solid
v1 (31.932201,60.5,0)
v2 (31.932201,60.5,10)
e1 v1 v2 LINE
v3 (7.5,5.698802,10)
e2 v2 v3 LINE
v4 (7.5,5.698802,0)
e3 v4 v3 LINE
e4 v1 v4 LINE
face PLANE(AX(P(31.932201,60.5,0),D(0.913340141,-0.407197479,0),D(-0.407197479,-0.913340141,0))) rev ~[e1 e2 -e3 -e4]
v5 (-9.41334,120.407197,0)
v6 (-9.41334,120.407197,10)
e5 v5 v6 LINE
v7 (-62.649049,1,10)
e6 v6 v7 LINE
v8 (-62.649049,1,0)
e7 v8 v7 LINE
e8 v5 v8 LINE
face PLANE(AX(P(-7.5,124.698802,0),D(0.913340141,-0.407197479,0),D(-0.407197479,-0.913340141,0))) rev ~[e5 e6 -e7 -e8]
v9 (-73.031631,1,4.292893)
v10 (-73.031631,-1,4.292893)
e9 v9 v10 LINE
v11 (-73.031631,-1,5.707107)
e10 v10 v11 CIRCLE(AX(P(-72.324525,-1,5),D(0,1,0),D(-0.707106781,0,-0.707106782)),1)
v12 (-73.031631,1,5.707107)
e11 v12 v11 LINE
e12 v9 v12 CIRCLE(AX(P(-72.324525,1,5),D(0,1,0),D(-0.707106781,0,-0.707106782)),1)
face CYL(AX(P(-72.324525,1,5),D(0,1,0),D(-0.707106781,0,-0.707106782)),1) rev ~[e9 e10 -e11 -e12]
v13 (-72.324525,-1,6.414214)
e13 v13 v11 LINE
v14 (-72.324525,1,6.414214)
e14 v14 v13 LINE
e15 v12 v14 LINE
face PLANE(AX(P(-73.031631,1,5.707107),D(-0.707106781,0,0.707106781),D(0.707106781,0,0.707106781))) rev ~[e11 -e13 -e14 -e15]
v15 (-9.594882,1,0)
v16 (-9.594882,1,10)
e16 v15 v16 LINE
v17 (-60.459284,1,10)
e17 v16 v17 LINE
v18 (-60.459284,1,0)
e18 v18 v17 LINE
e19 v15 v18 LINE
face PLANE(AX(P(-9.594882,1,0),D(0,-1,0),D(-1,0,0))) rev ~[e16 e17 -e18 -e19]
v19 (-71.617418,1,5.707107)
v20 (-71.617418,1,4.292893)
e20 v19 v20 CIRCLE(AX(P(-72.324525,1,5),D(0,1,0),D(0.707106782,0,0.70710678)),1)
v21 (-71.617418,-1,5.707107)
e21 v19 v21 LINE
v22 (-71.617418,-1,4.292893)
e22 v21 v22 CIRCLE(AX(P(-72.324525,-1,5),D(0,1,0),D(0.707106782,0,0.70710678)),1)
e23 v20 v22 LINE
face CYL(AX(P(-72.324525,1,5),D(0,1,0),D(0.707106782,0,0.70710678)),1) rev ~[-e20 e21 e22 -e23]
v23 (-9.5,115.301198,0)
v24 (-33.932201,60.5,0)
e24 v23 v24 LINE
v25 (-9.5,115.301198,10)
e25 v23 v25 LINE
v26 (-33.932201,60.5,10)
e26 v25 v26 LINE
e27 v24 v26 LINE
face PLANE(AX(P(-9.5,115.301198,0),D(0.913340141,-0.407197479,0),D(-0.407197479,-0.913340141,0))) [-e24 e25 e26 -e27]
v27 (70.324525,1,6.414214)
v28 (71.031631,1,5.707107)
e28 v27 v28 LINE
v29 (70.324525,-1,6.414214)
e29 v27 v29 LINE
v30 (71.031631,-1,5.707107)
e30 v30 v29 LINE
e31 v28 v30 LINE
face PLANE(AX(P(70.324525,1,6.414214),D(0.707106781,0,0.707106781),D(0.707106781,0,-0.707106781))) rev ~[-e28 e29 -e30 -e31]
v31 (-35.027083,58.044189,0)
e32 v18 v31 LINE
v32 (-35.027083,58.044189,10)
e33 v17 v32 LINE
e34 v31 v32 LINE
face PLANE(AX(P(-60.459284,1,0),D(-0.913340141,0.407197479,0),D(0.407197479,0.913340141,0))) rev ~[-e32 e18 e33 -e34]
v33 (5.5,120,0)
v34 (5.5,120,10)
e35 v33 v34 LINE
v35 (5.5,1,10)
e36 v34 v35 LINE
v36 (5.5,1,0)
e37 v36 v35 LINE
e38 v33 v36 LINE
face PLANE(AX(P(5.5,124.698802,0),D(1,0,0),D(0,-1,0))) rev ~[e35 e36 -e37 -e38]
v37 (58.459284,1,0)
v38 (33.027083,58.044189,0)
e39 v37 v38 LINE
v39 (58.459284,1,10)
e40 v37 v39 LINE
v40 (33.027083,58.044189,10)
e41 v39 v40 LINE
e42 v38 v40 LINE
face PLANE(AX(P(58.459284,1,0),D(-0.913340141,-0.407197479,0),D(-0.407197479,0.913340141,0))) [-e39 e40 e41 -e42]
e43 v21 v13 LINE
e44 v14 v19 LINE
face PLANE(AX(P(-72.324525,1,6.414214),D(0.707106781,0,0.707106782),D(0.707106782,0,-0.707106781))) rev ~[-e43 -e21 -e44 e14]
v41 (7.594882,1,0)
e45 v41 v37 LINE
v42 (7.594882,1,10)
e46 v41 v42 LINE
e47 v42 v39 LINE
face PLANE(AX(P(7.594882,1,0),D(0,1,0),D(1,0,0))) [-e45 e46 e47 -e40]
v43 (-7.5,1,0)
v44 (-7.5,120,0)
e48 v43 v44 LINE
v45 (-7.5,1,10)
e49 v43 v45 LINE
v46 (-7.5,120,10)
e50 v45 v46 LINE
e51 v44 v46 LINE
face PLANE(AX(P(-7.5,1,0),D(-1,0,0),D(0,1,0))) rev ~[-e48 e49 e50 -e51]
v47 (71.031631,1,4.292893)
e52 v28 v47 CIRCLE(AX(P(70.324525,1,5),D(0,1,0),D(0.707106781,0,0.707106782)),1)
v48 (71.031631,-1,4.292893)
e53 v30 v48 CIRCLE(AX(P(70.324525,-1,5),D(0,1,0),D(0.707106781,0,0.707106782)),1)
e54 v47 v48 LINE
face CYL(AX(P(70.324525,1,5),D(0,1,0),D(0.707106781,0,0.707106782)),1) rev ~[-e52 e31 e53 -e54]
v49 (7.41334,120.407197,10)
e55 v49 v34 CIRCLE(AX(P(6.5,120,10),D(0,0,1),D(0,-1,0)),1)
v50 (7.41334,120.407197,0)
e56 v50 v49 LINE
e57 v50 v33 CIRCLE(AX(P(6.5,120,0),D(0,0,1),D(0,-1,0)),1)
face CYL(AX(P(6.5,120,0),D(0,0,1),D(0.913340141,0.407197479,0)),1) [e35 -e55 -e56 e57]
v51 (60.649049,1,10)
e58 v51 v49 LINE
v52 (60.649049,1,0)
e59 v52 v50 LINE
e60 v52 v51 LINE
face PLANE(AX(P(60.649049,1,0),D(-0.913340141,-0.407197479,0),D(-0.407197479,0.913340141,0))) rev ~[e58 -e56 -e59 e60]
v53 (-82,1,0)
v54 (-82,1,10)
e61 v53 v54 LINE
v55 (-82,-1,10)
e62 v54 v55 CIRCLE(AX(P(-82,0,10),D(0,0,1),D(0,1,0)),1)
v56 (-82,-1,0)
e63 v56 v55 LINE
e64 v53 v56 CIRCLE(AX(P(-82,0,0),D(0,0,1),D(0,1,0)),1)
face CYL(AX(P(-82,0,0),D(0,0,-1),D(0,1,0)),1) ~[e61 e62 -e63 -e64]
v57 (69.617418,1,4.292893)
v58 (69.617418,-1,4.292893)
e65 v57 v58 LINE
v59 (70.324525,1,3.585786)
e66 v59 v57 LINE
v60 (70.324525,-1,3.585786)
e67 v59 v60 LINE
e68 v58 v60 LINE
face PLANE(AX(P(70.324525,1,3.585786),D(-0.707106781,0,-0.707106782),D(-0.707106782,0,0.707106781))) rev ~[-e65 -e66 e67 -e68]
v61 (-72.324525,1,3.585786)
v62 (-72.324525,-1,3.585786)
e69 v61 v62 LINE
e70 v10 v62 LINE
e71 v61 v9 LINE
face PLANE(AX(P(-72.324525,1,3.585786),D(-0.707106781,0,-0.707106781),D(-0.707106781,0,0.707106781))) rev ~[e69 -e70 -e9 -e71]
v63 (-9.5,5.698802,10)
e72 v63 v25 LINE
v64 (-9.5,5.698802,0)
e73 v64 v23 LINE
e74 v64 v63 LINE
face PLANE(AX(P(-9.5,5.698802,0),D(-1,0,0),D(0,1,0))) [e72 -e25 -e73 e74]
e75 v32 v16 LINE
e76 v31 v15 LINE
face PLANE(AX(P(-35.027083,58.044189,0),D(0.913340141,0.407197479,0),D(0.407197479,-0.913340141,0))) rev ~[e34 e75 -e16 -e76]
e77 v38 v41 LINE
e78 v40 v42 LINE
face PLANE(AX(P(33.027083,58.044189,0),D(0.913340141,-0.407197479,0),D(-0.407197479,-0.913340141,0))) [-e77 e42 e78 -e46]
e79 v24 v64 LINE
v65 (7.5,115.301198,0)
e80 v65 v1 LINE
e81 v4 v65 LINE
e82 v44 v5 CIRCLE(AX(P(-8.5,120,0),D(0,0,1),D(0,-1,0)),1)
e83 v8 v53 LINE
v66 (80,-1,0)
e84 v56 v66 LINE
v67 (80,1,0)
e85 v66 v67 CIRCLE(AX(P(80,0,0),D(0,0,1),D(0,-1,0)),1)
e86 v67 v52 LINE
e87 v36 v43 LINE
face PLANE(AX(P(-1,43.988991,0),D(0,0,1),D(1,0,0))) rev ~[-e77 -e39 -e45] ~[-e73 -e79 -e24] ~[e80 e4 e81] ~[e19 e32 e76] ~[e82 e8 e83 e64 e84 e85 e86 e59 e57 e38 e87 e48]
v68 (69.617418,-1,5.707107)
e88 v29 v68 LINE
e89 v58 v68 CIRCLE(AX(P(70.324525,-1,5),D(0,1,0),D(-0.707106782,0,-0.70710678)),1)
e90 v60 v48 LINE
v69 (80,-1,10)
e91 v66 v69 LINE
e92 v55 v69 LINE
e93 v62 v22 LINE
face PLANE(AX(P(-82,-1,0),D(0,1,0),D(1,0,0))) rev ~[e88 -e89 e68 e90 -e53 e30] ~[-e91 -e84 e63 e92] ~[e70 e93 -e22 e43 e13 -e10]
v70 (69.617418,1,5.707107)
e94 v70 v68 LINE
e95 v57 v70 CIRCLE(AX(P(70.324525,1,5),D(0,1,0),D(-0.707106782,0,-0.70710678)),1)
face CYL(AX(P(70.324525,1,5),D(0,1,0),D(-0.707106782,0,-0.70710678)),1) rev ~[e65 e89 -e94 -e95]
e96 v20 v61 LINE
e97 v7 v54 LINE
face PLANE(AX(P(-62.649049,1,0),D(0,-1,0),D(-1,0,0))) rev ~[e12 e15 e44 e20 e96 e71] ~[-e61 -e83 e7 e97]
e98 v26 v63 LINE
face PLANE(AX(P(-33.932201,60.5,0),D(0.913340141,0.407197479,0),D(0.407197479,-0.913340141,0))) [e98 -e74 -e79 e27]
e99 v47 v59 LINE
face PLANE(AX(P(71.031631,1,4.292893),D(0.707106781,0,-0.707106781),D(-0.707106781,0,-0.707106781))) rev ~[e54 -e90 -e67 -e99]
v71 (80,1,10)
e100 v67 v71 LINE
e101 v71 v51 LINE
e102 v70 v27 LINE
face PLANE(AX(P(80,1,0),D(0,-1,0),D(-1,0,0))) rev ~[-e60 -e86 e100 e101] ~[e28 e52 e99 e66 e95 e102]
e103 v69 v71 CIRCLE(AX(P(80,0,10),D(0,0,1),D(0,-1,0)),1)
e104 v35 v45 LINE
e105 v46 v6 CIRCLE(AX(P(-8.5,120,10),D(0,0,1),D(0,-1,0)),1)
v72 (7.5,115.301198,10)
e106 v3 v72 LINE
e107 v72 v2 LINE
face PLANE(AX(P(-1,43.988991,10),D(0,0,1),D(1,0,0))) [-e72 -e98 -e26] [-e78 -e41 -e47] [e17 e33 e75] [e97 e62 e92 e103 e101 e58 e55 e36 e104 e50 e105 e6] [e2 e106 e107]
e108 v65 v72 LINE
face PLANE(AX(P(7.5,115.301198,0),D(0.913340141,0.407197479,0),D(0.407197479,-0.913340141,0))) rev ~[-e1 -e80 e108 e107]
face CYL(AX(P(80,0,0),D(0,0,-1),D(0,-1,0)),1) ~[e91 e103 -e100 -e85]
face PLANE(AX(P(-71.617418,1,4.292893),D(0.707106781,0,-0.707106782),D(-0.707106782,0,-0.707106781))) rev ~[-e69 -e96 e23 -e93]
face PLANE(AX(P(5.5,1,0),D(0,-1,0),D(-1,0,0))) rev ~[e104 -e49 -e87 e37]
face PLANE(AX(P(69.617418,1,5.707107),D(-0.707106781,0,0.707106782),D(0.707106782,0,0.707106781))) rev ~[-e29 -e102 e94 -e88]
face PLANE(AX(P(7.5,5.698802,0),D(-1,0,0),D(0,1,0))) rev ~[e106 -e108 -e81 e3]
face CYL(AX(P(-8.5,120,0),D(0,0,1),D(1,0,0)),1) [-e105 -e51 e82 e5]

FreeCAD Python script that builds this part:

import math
import FreeCAD as App
import Part
import Sketcher
from FreeCAD import Vector


def edges_at(feature, points):
    """Names of the edges that pass closest to the given points."""
    edges = feature.Shape.Edges
    near = lambda p: min(range(len(edges)), key=lambda i: edges[i].distToShape(Part.Vertex(*p))[0])
    return sorted({f"Edge{near(p) + 1}" for p in points})

doc = App.newDocument("Part")
body = doc.addObject("PartDesign::Body", "Body")

sketch1 = body.newObject("Sketcher::SketchObject", "Sketch")
sketch1.AttachmentSupport = (doc.getObject("XY_Plane"), [""])
sketch1.MapMode = "FlatFace"
sketch1.addGeometry(Part.ArcOfCircle(Part.Circle(Vector(80, 0, 0), Vector(0, 0, 1), 1), math.radians(-90), math.radians(90)), False)
sketch1.addGeometry(Part.LineSegment(Vector(80, 1, 0), Vector(60.6, 1, 0)), False)
sketch1.addGeometry(Part.LineSegment(Vector(60.6, 1, 0), Vector(5.5, 124.7, 0)), False)
sketch1.addGeometry(Part.LineSegment(Vector(5.5, 124.7, 0), Vector(5.5, 1, 0)), False)
sketch1.addGeometry(Part.LineSegment(Vector(5.5, 1, 0), Vector(-7.5, 1, 0)), False)
sketch1.addGeometry(Part.LineSegment(Vector(-7.5, 1, 0), Vector(-7.5, 124.7, 0)), False)
sketch1.addGeometry(Part.LineSegment(Vector(-7.5, 124.7, 0), Vector(-62.6, 1, 0)), False)
sketch1.addGeometry(Part.LineSegment(Vector(-62.6, 1, 0), Vector(-82, 1, 0)), False)
sketch1.addGeometry(Part.ArcOfCircle(Part.Circle(Vector(-82, 0, 0), Vector(0, 0, 1), 1), math.radians(90), math.radians(270)), False)
sketch1.addGeometry(Part.LineSegment(Vector(-82, -1, 0), Vector(80, -1, 0)), False)
sketch1.addGeometry(Part.LineSegment(Vector(-60.5, 1, 0), Vector(-35, 58, 0)), False)
sketch1.addGeometry(Part.LineSegment(Vector(-35, 58, 0), Vector(-9.6, 1, 0)), False)
sketch1.addGeometry(Part.LineSegment(Vector(-9.6, 1, 0), Vector(-60.5, 1, 0)), False)
sketch1.addGeometry(Part.LineSegment(Vector(58.5, 1, 0), Vector(7.6, 1, 0)), False)
sketch1.addGeometry(Part.LineSegment(Vector(7.6, 1, 0), Vector(33, 58, 0)), False)
sketch1.addGeometry(Part.LineSegment(Vector(33, 58, 0), Vector(58.5, 1, 0)), False)
sketch1.addGeometry(Part.LineSegment(Vector(-33.9, 60.5, 0), Vector(-9.5, 115.3, 0)), False)
sketch1.addGeometry(Part.LineSegment(Vector(-9.5, 115.3, 0), Vector(-9.5, 5.7, 0)), False)
sketch1.addGeometry(Part.LineSegment(Vector(-9.5, 5.7, 0), Vector(-33.9, 60.5, 0)), False)
sketch1.addGeometry(Part.LineSegment(Vector(7.5, 115.3, 0), Vector(31.9, 60.5, 0)), False)
sketch1.addGeometry(Part.LineSegment(Vector(31.9, 60.5, 0), Vector(7.5, 5.7, 0)), False)
sketch1.addGeometry(Part.LineSegment(Vector(7.5, 5.7, 0), Vector(7.5, 115.3, 0)), False)
sketch1.addConstraint(Sketcher.Constraint("Tangent", 0, 2, 1, 1))
sketch1.addConstraint(Sketcher.Constraint("Coincident", 1, 2, 2, 1))
sketch1.addConstraint(Sketcher.Constraint("Coincident", 2, 2, 3, 1))
sketch1.addConstraint(Sketcher.Constraint("Coincident", 3, 2, 4, 1))
sketch1.addConstraint(Sketcher.Constraint("Coincident", 4, 2, 5, 1))
sketch1.addConstraint(Sketcher.Constraint("Coincident", 5, 2, 6, 1))
sketch1.addConstraint(Sketcher.Constraint("Coincident", 6, 2, 7, 1))
sketch1.addConstraint(Sketcher.Constraint("Tangent", 7, 2, 8, 1))
sketch1.addConstraint(Sketcher.Constraint("Tangent", 8, 2, 9, 1))
sketch1.addConstraint(Sketcher.Constraint("Tangent", 9, 2, 0, 1))
sketch1.addConstraint(Sketcher.Constraint("Coincident", 10, 2, 11, 1))
sketch1.addConstraint(Sketcher.Constraint("Coincident", 11, 2, 12, 1))
sketch1.addConstraint(Sketcher.Constraint("Coincident", 12, 2, 10, 1))
sketch1.addConstraint(Sketcher.Constraint("Coincident", 13, 2, 14, 1))
sketch1.addConstraint(Sketcher.Constraint("Coincident", 14, 2, 15, 1))
sketch1.addConstraint(Sketcher.Constraint("Coincident", 15, 2, 13, 1))
sketch1.addConstraint(Sketcher.Constraint("Coincident", 16, 2, 17, 1))
sketch1.addConstraint(Sketcher.Constraint("Coincident", 17, 2, 18, 1))
sketch1.addConstraint(Sketcher.Constraint("Coincident", 18, 2, 16, 1))
sketch1.addConstraint(Sketcher.Constraint("Coincident", 19, 2, 20, 1))
sketch1.addConstraint(Sketcher.Constraint("Coincident", 20, 2, 21, 1))
sketch1.addConstraint(Sketcher.Constraint("Coincident", 21, 2, 19, 1))
sketch1.addConstraint(Sketcher.Constraint("Horizontal", 1))
sketch1.addConstraint(Sketcher.Constraint("Vertical", 3))
sketch1.addConstraint(Sketcher.Constraint("Horizontal", 4))
sketch1.addConstraint(Sketcher.Constraint("Vertical", 5))
sketch1.addConstraint(Sketcher.Constraint("Horizontal", 7))
sketch1.addConstraint(Sketcher.Constraint("Horizontal", 9))
sketch1.addConstraint(Sketcher.Constraint("Horizontal", 12))
sketch1.addConstraint(Sketcher.Constraint("Horizontal", 13))
sketch1.addConstraint(Sketcher.Constraint("Vertical", 17))
sketch1.addConstraint(Sketcher.Constraint("Vertical", 21))
sketch1.addConstraint(Sketcher.Constraint("Equal", 0, 8))
sketch1.addConstraint(Sketcher.Constraint("PointOnObject", 0, 3, -1))
sketch1.addConstraint(Sketcher.Constraint("Parallel", 6, 10))
sketch1.addConstraint(Sketcher.Constraint("Parallel", 2, 11))
sketch1.addConstraint(Sketcher.Constraint("Parallel", 10, 14))
sketch1.addConstraint(Sketcher.Constraint("Parallel", 11, 15))
sketch1.addConstraint(Sketcher.Constraint("Parallel", 14, 16))
sketch1.addConstraint(Sketcher.Constraint("Parallel", 15, 18))
sketch1.addConstraint(Sketcher.Constraint("Parallel", 18, 19))
sketch1.addConstraint(Sketcher.Constraint("Parallel", 16, 20))
sketch1.addConstraint(Sketcher.Constraint("Horizontal", 1, 2, 3, 2))
sketch1.addConstraint(Sketcher.Constraint("Horizontal", 2, 2, 5, 2))
sketch1.addConstraint(Sketcher.Constraint("Horizontal", 7, 2, 11, 2))
sketch1.addConstraint(Sketcher.Constraint("Horizontal", 12, 2, 13, 2))
sketch1.addConstraint(Sketcher.Constraint("Horizontal", 10, 2, 14, 2))
sketch1.addConstraint(Sketcher.Constraint("Horizontal", 18, 2, 19, 2))
sketch1.addConstraint(Sketcher.Constraint("Horizontal", 17, 2, 20, 2))
sketch1.addConstraint(Sketcher.Constraint("Horizontal", 16, 2, 21, 2))
sketch1.addConstraint(Sketcher.Constraint("Equal", 1, 7))
sketch1.addConstraint(Sketcher.Constraint("Radius", 0, 1.0))
sketch1.addConstraint(Sketcher.Constraint("DistanceX", 4, 2, 4, 1, 13.0))
sketch1.addConstraint(Sketcher.Constraint("DistanceX", 9, 1, 9, 2, 162.0))
sketch1.addConstraint(Sketcher.Constraint("DistanceX", -1, 1, 0, 3, 80.0))
sketch1.addConstraint(Sketcher.Constraint("DistanceX", 16, 2, 5, 2, 2.0))
sketch1.addConstraint(Sketcher.Constraint("DistanceX", 3, 2, 20, 2, 2.0))
sketch1.addConstraint(Sketcher.Constraint("DistanceY", -1, 1, 18, 2, 60.5))
sketch1.addConstraint(Sketcher.Constraint("DistanceX", 12, 2, 12, 1, 50.864402))
sketch1.addConstraint(Sketcher.Constraint("DistanceY", 3, 2, 3, 1, 123.698802))
sketch1.addConstraint(Sketcher.Constraint("DistanceX", 1, 2, 1, 1, 19.350951))
sketch1.addConstraint(Sketcher.Constraint("DistanceY", -1, 1, 16, 2, 115.301198))
sketch1.addConstraint(Sketcher.Constraint("DistanceX", 11, 2, 1, 2, 70.243931))
sketch1.addConstraint(Sketcher.Constraint("DistanceX", 13, 2, 19, 2, 24.337319))
pad1 = body.newObject("PartDesign::Pad", "Pad")
pad1.Profile = sketch1
pad1.Length = 10

sketch2 = body.newObject("Sketcher::SketchObject", "Sketch001")
sketch2.AttachmentSupport = (doc.getObject("XZ_Plane"), [""])
sketch2.MapMode = "FlatFace"
sketch2.AttachmentOffset = App.Placement(Vector(0, 0, -1), App.Rotation())
sketch2.addGeometry(Part.LineSegment(Vector(-72.3, 3.6, 0), Vector(-73, 4.3, 0)), False)
sketch2.addGeometry(Part.ArcOfCircle(Part.Circle(Vector(-72.3, 5, 0), Vector(0, 0, 1), 1), math.radians(135), math.radians(225)), False)
sketch2.addGeometry(Part.LineSegment(Vector(-73, 5.7, 0), Vector(-72.3, 6.4, 0)), False)
sketch2.addGeometry(Part.LineSegment(Vector(-72.3, 6.4, 0), Vector(-71.6, 5.7, 0)), False)
sketch2.addGeometry(Part.ArcOfCircle(Part.Circle(Vector(-72.3, 5, 0), Vector(0, 0, 1), 1), math.radians(-45), math.radians(45)), False)
sketch2.addGeometry(Part.LineSegment(Vector(-71.6, 4.3, 0), Vector(-72.3, 3.6, 0)), False)
sketch2.addConstraint(Sketcher.Constraint("Tangent", 0, 2, 1, 2))
sketch2.addConstraint(Sketcher.Constraint("Tangent", 1, 1, 2, 1))
sketch2.addConstraint(Sketcher.Constraint("Coincident", 2, 2, 3, 1))
sketch2.addConstraint(Sketcher.Constraint("Tangent", 3, 2, 4, 2))
sketch2.addConstraint(Sketcher.Constraint("Tangent", 4, 1, 5, 1))
sketch2.addConstraint(Sketcher.Constraint("Coincident", 5, 2, 0, 1))
sketch2.addConstraint(Sketcher.Constraint("Coincident", 4, 3, 1, 3))
sketch2.addConstraint(Sketcher.Constraint("Equal", 1, 4))
sketch2.addConstraint(Sketcher.Constraint("Perpendicular", 0, 2))
sketch2.addConstraint(Sketcher.Constraint("Perpendicular", 2, 3))
sketch2.addConstraint(Sketcher.Constraint("Perpendicular", 3, 5))
sketch2.addConstraint(Sketcher.Constraint("Horizontal", 1, 1, 3, 2))
sketch2.addConstraint(Sketcher.Constraint("Radius", 1, 1.0))
sketch2.addConstraint(Sketcher.Constraint("DistanceY", -1, 1, 1, 3, 5.0))
sketch2.addConstraint(Sketcher.Constraint("DistanceX", 0, 2, -1, 1, 73.031631))
pocket1 = body.newObject("PartDesign::Pocket", "Pocket")
pocket1.Profile = sketch2
pocket1.Type = "UpToFirst"
pocket1.Reversed = True

sketch3 = body.newObject("Sketcher::SketchObject", "Sketch002")
sketch3.AttachmentSupport = (doc.getObject("XZ_Plane"), [""])
sketch3.MapMode = "FlatFace"
sketch3.AttachmentOffset = App.Placement(Vector(0, 0, -1), App.Rotation())
sketch3.addGeometry(Part.LineSegment(Vector(69.6, 5.7, 0), Vector(70.3, 6.4, 0)), False)
sketch3.addGeometry(Part.LineSegment(Vector(70.3, 6.4, 0), Vector(71, 5.7, 0)), False)
sketch3.addGeometry(Part.ArcOfCircle(Part.Circle(Vector(70.3, 5, 0), Vector(0, 0, 1), 1), math.radians(-45), math.radians(45)), False)
sketch3.addGeometry(Part.LineSegment(Vector(71, 4.3, 0), Vector(70.3, 3.6, 0)), False)
sketch3.addGeometry(Part.LineSegment(Vector(70.3, 3.6, 0), Vector(69.6, 4.3, 0)), False)
sketch3.addGeometry(Part.ArcOfCircle(Part.Circle(Vector(70.3, 5, 0), Vector(0, 0, 1), 1), math.radians(135), math.radians(225)), False)
sketch3.addConstraint(Sketcher.Constraint("Coincident", 0, 2, 1, 1))
sketch3.addConstraint(Sketcher.Constraint("Tangent", 1, 2, 2, 2))
sketch3.addConstraint(Sketcher.Constraint("Tangent", 2, 1, 3, 1))
sketch3.addConstraint(Sketcher.Constraint("Coincident", 3, 2, 4, 1))
sketch3.addConstraint(Sketcher.Constraint("Tangent", 4, 2, 5, 2))
sketch3.addConstraint(Sketcher.Constraint("Tangent", 5, 1, 0, 1))
sketch3.addConstraint(Sketcher.Constraint("Coincident", 5, 3, 2, 3))
sketch3.addConstraint(Sketcher.Constraint("Equal", 2, 5))
sketch3.addConstraint(Sketcher.Constraint("Perpendicular", 0, 1))
sketch3.addConstraint(Sketcher.Constraint("Perpendicular", 1, 3))
sketch3.addConstraint(Sketcher.Constraint("Perpendicular", 3, 4))
sketch3.addConstraint(Sketcher.Constraint("Horizontal", 2, 1, 4, 2))
sketch3.addConstraint(Sketcher.Constraint("Radius", 2, 1.0))
sketch3.addConstraint(Sketcher.Constraint("DistanceY", -1, 1, 2, 3, 5.0))
sketch3.addConstraint(Sketcher.Constraint("DistanceX", -1, 1, 1, 2, 71.031631))
pocket2 = body.newObject("PartDesign::Pocket", "Pocket001")
pocket2.Profile = sketch3
pocket2.Type = "UpToFirst"
pocket2.Reversed = True
doc.recompute()

fillet = body.newObject("PartDesign::Fillet", "Fillet")
fillet.Base = (pocket2, edges_at(pocket2, [(5.5, 124.699, 5)]))
fillet.Radius = 1
doc.recompute()

fillet2 = body.newObject("PartDesign::Fillet", "Fillet001")
fillet2.Base = (fillet, edges_at(fillet, [(-7.5, 124.699, 5)]))
fillet2.Radius = 1

doc.recompute()
